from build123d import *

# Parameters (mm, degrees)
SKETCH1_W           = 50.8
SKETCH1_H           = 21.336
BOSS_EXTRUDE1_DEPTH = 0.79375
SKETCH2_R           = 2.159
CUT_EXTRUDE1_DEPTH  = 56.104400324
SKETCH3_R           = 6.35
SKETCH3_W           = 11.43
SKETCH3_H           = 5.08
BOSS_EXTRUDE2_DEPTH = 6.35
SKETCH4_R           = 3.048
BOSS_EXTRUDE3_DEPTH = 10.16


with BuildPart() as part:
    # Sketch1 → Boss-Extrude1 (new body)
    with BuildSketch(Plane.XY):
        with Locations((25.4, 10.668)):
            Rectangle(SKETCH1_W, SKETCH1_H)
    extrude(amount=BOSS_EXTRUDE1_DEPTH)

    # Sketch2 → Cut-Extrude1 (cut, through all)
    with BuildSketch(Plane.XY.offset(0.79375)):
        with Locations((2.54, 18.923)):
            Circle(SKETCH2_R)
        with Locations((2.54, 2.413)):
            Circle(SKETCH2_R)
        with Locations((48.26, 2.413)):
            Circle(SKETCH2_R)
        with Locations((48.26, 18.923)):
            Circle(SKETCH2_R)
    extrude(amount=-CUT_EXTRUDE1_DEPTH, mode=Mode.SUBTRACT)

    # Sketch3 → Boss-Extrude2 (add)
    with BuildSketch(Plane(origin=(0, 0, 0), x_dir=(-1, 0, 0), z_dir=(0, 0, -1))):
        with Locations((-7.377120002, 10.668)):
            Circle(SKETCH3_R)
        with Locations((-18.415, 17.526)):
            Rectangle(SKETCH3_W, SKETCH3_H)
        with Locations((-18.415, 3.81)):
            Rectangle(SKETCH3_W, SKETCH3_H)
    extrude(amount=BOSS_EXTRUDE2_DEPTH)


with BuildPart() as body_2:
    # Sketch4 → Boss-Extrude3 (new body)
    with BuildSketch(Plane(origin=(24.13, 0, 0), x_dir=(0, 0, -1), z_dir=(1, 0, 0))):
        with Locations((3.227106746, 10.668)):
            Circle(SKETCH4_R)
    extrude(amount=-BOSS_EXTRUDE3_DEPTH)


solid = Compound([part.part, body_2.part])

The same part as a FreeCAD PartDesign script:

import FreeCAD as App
import Part
import Sketcher
from FreeCAD import Vector
Q = App.Units.Quantity

doc = App.newDocument("Part")
body = doc.addObject("PartDesign::Body", "Body")

# Sketch on XY plane
sketch1 = doc.addObject("Sketcher::SketchObject", "Sketch")
body.addObject(sketch1)
sketch1.AttachmentSupport = (doc.XY_Plane, [""])
sketch1.MapMode = "FlatFace"
sketch1.addGeometry(Part.LineSegment(Vector(0, 21.336, 0), Vector(0, 0, 0)), False)
sketch1.addGeometry(Part.LineSegment(Vector(0, 0, 0), Vector(50.8, 0, 0)), False)
sketch1.addGeometry(Part.LineSegment(Vector(50.8, 0, 0), Vector(50.8, 21.336, 0)), False)
sketch1.addGeometry(Part.LineSegment(Vector(50.8, 21.336, 0), Vector(0, 21.336, 0)), False)
sketch1.addConstraint(Sketcher.Constraint("Coincident", 0, 2, 1, 1))
sketch1.addConstraint(Sketcher.Constraint("Coincident", 1, 2, 2, 1))
sketch1.addConstraint(Sketcher.Constraint("Coincident", 2, 2, 3, 1))
sketch1.addConstraint(Sketcher.Constraint("Coincident", 3, 2, 0, 1))
sketch1.addConstraint(Sketcher.Constraint("Vertical", 0))
sketch1.addConstraint(Sketcher.Constraint("Horizontal", 1))
sketch1.addConstraint(Sketcher.Constraint("Vertical", 2))
sketch1.addConstraint(Sketcher.Constraint("Horizontal", 3))
sketch1.addConstraint(Sketcher.Constraint("Coincident", 0, 2, -1, 1))
sketch1.addConstraint(Sketcher.Constraint("DistanceX", 1, 1, 1, 2, Q("2 in")))
sketch1.addConstraint(Sketcher.Constraint("DistanceY", 0, 2, 0, 1, Q("0.84 in")))
pad1 = doc.addObject("PartDesign::Pad", "Pad")
body.addObject(pad1)
pad1.Profile = sketch1
pad1.Length = Q("0.03125 in")

# Sketch on XY plane
sketch2 = doc.addObject("Sketcher::SketchObject", "Sketch001")
body.addObject(sketch2)
sketch2.AttachmentSupport = (doc.XY_Plane, [""])
sketch2.MapMode = "FlatFace"
sketch2.AttachmentOffset = App.Placement(Vector(0, 0, 0.03125 * 25.4), App.Rotation())
sketch2.addGeometry(Part.Circle(Vector(2.54, 18.923, 0), Vector(0, 0, 1), 2.159), False)
sketch2.addGeometry(Part.Circle(Vector(2.54, 2.413, 0), Vector(0, 0, 1), 2.159), False)
sketch2.addGeometry(Part.Circle(Vector(48.26, 2.413, 0), Vector(0, 0, 1), 2.159), False)
sketch2.addGeometry(Part.Circle(Vector(48.26, 18.923, 0), Vector(0, 0, 1), 2.159), False)
sketch2.addConstraint(Sketcher.Constraint("Equal", 0, 1))
sketch2.addConstraint(Sketcher.Constraint("Equal", 1, 2))
sketch2.addConstraint(Sketcher.Constraint("Equal", 2, 3))
sketch2.addConstraint(Sketcher.Constraint("Horizontal", 1, 3, 2, 3))
sketch2.addConstraint(Sketcher.Constraint("Horizontal", 0, 3, 3, 3))
sketch2.addConstraint(Sketcher.Constraint("Vertical", 0, 3, 1, 3))
sketch2.addConstraint(Sketcher.Constraint("Vertical", 2, 3, 3, 3))
sketch2.addConstraint(Sketcher.Constraint("Diameter", 0, Q("0.17 in")))
sketch2.addConstraint(Sketcher.Constraint("DistanceX", -1, 1, 0, 3, Q("0.1 in")))
sketch2.addConstraint(Sketcher.Constraint("DistanceX", -1, 1, 2, 3, Q("1.9 in")))
sketch2.addConstraint(Sketcher.Constraint("DistanceY", 1, 3, 0, 3, Q("0.65 in")))
sketch2.addConstraint(Sketcher.Constraint("DistanceY", -1, 1, 0, 3, Q("0.745 in")))
pocket1 = doc.addObject("PartDesign::Pocket", "Pocket")
body.addObject(pocket1)
pocket1.Profile = sketch2
pocket1.Type = "ThroughAll"

# Sketch on XY plane
sketch3 = doc.addObject("Sketcher::SketchObject", "Sketch002")
body.addObject(sketch3)
sketch3.AttachmentSupport = (doc.XY_Plane, [""])
sketch3.MapMode = "FlatFace"
sketch3.addGeometry(Part.Circle(Vector(7.37712, 10.668, 0), Vector(0, 0, 1), 6.35), False)
sketch3.addGeometry(Part.LineSegment(Vector(24.13, 20.066, 0), Vector(24.13, 14.986, 0)), False)
sketch3.addGeometry(Part.LineSegment(Vector(24.13, 14.986, 0), Vector(12.7, 14.986, 0)), False)
sketch3.addGeometry(Part.LineSegment(Vector(12.7, 14.986, 0), Vector(12.7, 20.066, 0)), False)
sketch3.addGeometry(Part.LineSegment(Vector(12.7, 20.066, 0), Vector(24.13, 20.066, 0)), False)
sketch3.addGeometry(Part.LineSegment(Vector(24.13, 6.35, 0), Vector(24.13, 1.27, 0)), False)
sketch3.addGeometry(Part.LineSegment(Vector(24.13, 1.27, 0), Vector(12.7, 1.27, 0)), False)
sketch3.addGeometry(Part.LineSegment(Vector(12.7, 1.27, 0), Vector(12.7, 6.35, 0)), False)
sketch3.addGeometry(Part.LineSegment(Vector(12.7, 6.35, 0), Vector(24.13, 6.35, 0)), False)
sketch3.addConstraint(Sketcher.Constraint("Coincident", 1, 2, 2, 1))
sketch3.addConstraint(Sketcher.Constraint("Coincident", 2, 2, 3, 1))
sketch3.addConstraint(Sketcher.Constraint("Coincident", 3, 2, 4, 1))
sketch3.addConstraint(Sketcher.Constraint("Coincident", 4, 2, 1, 1))
sketch3.addConstraint(Sketcher.Constraint("Coincident", 5, 2, 6, 1))
sketch3.addConstraint(Sketcher.Constraint("Coincident", 6, 2, 7, 1))
sketch3.addConstraint(Sketcher.Constraint("Coincident", 7, 2, 8, 1))
sketch3.addConstraint(Sketcher.Constraint("Coincident", 8, 2, 5, 1))
sketch3.addConstraint(Sketcher.Constraint("Vertical", 1))
sketch3.addConstraint(Sketcher.Constraint("Horizontal", 2))
sketch3.addConstraint(Sketcher.Constraint("Vertical", 3))
sketch3.addConstraint(Sketcher.Constraint("Horizontal", 4))
sketch3.addConstraint(Sketcher.Constraint("Vertical", 5))
sketch3.addConstraint(Sketcher.Constraint("Horizontal", 6))
sketch3.addConstraint(Sketcher.Constraint("Vertical", 7))
sketch3.addConstraint(Sketcher.Constraint("Horizontal", 8))
sketch3.addConstraint(Sketcher.Constraint("Vertical", 4, 2, 5, 2))
sketch3.addConstraint(Sketcher.Constraint("Vertical", 3, 2, 6, 2))
sketch3.addConstraint(Sketcher.Constraint("Equal", 3, 5))
sketch3.addConstraint(Sketcher.Constraint("Diameter", 0, Q("0.5 in")))
sketch3.addConstraint(Sketcher.Constraint("DistanceY", 1, 2, 1, 1, Q("0.2 in")))
sketch3.addConstraint(Sketcher.Constraint("DistanceX", 2, 2, 2, 1, Q("0.45 in")))
sketch3.addConstraint(Sketcher.Constraint("DistanceX", -1, 1, 2, 2, Q("0.5 in")))
sketch3.addConstraint(Sketcher.Constraint("DistanceY", -1, 1, 0, 3, Q("0.42 in")))
sketch3.addConstraint(Sketcher.Constraint("DistanceY", -1, 1, 1, 2, Q("0.59 in")))
sketch3.addConstraint(Sketcher.Constraint("DistanceY", -1, 1, 5, 2, Q("0.05 in")))
sketch3.addConstraint(Sketcher.Constraint("DistanceX", -1, 1, 0, 3, 7.37712))
pad2 = doc.addObject("PartDesign::Pad", "Pad001")
body.addObject(pad2)
pad2.Profile = sketch3
pad2.Length = Q("0.25 in")
pad2.Reversed = True
body2 = doc.addObject("PartDesign::Body", "Body001")

# Sketch on YZ plane
sketch4 = doc.addObject("Sketcher::SketchObject", "Sketch003")
body2.addObject(sketch4)
sketch4.AttachmentSupport = (doc.getObject("YZ_Plane001"), [""])
sketch4.MapMode = "FlatFace"
sketch4.AttachmentOffset = App.Placement(Vector(0, 0, 0.95 * 25.4), App.Rotation())
sketch4.addGeometry(Part.Circle(Vector(10.668, -3.227107, 0), Vector(0, 0, 1), 3.048), False)
sketch4.addConstraint(Sketcher.Constraint("Diameter", 0, Q("0.24 in")))
sketch4.addConstraint(Sketcher.Constraint("DistanceX", -1, 1, 0, 3, Q("0.42 in")))
sketch4.addConstraint(Sketcher.Constraint("DistanceY", 0, 3, -1, 1, 3.227107))
pad3 = doc.addObject("PartDesign::Pad", "Pad002")
body2.addObject(pad3)
pad3.Profile = sketch4
pad3.Length = Q("0.4 in")
pad3.Reversed = True

doc.recompute()
